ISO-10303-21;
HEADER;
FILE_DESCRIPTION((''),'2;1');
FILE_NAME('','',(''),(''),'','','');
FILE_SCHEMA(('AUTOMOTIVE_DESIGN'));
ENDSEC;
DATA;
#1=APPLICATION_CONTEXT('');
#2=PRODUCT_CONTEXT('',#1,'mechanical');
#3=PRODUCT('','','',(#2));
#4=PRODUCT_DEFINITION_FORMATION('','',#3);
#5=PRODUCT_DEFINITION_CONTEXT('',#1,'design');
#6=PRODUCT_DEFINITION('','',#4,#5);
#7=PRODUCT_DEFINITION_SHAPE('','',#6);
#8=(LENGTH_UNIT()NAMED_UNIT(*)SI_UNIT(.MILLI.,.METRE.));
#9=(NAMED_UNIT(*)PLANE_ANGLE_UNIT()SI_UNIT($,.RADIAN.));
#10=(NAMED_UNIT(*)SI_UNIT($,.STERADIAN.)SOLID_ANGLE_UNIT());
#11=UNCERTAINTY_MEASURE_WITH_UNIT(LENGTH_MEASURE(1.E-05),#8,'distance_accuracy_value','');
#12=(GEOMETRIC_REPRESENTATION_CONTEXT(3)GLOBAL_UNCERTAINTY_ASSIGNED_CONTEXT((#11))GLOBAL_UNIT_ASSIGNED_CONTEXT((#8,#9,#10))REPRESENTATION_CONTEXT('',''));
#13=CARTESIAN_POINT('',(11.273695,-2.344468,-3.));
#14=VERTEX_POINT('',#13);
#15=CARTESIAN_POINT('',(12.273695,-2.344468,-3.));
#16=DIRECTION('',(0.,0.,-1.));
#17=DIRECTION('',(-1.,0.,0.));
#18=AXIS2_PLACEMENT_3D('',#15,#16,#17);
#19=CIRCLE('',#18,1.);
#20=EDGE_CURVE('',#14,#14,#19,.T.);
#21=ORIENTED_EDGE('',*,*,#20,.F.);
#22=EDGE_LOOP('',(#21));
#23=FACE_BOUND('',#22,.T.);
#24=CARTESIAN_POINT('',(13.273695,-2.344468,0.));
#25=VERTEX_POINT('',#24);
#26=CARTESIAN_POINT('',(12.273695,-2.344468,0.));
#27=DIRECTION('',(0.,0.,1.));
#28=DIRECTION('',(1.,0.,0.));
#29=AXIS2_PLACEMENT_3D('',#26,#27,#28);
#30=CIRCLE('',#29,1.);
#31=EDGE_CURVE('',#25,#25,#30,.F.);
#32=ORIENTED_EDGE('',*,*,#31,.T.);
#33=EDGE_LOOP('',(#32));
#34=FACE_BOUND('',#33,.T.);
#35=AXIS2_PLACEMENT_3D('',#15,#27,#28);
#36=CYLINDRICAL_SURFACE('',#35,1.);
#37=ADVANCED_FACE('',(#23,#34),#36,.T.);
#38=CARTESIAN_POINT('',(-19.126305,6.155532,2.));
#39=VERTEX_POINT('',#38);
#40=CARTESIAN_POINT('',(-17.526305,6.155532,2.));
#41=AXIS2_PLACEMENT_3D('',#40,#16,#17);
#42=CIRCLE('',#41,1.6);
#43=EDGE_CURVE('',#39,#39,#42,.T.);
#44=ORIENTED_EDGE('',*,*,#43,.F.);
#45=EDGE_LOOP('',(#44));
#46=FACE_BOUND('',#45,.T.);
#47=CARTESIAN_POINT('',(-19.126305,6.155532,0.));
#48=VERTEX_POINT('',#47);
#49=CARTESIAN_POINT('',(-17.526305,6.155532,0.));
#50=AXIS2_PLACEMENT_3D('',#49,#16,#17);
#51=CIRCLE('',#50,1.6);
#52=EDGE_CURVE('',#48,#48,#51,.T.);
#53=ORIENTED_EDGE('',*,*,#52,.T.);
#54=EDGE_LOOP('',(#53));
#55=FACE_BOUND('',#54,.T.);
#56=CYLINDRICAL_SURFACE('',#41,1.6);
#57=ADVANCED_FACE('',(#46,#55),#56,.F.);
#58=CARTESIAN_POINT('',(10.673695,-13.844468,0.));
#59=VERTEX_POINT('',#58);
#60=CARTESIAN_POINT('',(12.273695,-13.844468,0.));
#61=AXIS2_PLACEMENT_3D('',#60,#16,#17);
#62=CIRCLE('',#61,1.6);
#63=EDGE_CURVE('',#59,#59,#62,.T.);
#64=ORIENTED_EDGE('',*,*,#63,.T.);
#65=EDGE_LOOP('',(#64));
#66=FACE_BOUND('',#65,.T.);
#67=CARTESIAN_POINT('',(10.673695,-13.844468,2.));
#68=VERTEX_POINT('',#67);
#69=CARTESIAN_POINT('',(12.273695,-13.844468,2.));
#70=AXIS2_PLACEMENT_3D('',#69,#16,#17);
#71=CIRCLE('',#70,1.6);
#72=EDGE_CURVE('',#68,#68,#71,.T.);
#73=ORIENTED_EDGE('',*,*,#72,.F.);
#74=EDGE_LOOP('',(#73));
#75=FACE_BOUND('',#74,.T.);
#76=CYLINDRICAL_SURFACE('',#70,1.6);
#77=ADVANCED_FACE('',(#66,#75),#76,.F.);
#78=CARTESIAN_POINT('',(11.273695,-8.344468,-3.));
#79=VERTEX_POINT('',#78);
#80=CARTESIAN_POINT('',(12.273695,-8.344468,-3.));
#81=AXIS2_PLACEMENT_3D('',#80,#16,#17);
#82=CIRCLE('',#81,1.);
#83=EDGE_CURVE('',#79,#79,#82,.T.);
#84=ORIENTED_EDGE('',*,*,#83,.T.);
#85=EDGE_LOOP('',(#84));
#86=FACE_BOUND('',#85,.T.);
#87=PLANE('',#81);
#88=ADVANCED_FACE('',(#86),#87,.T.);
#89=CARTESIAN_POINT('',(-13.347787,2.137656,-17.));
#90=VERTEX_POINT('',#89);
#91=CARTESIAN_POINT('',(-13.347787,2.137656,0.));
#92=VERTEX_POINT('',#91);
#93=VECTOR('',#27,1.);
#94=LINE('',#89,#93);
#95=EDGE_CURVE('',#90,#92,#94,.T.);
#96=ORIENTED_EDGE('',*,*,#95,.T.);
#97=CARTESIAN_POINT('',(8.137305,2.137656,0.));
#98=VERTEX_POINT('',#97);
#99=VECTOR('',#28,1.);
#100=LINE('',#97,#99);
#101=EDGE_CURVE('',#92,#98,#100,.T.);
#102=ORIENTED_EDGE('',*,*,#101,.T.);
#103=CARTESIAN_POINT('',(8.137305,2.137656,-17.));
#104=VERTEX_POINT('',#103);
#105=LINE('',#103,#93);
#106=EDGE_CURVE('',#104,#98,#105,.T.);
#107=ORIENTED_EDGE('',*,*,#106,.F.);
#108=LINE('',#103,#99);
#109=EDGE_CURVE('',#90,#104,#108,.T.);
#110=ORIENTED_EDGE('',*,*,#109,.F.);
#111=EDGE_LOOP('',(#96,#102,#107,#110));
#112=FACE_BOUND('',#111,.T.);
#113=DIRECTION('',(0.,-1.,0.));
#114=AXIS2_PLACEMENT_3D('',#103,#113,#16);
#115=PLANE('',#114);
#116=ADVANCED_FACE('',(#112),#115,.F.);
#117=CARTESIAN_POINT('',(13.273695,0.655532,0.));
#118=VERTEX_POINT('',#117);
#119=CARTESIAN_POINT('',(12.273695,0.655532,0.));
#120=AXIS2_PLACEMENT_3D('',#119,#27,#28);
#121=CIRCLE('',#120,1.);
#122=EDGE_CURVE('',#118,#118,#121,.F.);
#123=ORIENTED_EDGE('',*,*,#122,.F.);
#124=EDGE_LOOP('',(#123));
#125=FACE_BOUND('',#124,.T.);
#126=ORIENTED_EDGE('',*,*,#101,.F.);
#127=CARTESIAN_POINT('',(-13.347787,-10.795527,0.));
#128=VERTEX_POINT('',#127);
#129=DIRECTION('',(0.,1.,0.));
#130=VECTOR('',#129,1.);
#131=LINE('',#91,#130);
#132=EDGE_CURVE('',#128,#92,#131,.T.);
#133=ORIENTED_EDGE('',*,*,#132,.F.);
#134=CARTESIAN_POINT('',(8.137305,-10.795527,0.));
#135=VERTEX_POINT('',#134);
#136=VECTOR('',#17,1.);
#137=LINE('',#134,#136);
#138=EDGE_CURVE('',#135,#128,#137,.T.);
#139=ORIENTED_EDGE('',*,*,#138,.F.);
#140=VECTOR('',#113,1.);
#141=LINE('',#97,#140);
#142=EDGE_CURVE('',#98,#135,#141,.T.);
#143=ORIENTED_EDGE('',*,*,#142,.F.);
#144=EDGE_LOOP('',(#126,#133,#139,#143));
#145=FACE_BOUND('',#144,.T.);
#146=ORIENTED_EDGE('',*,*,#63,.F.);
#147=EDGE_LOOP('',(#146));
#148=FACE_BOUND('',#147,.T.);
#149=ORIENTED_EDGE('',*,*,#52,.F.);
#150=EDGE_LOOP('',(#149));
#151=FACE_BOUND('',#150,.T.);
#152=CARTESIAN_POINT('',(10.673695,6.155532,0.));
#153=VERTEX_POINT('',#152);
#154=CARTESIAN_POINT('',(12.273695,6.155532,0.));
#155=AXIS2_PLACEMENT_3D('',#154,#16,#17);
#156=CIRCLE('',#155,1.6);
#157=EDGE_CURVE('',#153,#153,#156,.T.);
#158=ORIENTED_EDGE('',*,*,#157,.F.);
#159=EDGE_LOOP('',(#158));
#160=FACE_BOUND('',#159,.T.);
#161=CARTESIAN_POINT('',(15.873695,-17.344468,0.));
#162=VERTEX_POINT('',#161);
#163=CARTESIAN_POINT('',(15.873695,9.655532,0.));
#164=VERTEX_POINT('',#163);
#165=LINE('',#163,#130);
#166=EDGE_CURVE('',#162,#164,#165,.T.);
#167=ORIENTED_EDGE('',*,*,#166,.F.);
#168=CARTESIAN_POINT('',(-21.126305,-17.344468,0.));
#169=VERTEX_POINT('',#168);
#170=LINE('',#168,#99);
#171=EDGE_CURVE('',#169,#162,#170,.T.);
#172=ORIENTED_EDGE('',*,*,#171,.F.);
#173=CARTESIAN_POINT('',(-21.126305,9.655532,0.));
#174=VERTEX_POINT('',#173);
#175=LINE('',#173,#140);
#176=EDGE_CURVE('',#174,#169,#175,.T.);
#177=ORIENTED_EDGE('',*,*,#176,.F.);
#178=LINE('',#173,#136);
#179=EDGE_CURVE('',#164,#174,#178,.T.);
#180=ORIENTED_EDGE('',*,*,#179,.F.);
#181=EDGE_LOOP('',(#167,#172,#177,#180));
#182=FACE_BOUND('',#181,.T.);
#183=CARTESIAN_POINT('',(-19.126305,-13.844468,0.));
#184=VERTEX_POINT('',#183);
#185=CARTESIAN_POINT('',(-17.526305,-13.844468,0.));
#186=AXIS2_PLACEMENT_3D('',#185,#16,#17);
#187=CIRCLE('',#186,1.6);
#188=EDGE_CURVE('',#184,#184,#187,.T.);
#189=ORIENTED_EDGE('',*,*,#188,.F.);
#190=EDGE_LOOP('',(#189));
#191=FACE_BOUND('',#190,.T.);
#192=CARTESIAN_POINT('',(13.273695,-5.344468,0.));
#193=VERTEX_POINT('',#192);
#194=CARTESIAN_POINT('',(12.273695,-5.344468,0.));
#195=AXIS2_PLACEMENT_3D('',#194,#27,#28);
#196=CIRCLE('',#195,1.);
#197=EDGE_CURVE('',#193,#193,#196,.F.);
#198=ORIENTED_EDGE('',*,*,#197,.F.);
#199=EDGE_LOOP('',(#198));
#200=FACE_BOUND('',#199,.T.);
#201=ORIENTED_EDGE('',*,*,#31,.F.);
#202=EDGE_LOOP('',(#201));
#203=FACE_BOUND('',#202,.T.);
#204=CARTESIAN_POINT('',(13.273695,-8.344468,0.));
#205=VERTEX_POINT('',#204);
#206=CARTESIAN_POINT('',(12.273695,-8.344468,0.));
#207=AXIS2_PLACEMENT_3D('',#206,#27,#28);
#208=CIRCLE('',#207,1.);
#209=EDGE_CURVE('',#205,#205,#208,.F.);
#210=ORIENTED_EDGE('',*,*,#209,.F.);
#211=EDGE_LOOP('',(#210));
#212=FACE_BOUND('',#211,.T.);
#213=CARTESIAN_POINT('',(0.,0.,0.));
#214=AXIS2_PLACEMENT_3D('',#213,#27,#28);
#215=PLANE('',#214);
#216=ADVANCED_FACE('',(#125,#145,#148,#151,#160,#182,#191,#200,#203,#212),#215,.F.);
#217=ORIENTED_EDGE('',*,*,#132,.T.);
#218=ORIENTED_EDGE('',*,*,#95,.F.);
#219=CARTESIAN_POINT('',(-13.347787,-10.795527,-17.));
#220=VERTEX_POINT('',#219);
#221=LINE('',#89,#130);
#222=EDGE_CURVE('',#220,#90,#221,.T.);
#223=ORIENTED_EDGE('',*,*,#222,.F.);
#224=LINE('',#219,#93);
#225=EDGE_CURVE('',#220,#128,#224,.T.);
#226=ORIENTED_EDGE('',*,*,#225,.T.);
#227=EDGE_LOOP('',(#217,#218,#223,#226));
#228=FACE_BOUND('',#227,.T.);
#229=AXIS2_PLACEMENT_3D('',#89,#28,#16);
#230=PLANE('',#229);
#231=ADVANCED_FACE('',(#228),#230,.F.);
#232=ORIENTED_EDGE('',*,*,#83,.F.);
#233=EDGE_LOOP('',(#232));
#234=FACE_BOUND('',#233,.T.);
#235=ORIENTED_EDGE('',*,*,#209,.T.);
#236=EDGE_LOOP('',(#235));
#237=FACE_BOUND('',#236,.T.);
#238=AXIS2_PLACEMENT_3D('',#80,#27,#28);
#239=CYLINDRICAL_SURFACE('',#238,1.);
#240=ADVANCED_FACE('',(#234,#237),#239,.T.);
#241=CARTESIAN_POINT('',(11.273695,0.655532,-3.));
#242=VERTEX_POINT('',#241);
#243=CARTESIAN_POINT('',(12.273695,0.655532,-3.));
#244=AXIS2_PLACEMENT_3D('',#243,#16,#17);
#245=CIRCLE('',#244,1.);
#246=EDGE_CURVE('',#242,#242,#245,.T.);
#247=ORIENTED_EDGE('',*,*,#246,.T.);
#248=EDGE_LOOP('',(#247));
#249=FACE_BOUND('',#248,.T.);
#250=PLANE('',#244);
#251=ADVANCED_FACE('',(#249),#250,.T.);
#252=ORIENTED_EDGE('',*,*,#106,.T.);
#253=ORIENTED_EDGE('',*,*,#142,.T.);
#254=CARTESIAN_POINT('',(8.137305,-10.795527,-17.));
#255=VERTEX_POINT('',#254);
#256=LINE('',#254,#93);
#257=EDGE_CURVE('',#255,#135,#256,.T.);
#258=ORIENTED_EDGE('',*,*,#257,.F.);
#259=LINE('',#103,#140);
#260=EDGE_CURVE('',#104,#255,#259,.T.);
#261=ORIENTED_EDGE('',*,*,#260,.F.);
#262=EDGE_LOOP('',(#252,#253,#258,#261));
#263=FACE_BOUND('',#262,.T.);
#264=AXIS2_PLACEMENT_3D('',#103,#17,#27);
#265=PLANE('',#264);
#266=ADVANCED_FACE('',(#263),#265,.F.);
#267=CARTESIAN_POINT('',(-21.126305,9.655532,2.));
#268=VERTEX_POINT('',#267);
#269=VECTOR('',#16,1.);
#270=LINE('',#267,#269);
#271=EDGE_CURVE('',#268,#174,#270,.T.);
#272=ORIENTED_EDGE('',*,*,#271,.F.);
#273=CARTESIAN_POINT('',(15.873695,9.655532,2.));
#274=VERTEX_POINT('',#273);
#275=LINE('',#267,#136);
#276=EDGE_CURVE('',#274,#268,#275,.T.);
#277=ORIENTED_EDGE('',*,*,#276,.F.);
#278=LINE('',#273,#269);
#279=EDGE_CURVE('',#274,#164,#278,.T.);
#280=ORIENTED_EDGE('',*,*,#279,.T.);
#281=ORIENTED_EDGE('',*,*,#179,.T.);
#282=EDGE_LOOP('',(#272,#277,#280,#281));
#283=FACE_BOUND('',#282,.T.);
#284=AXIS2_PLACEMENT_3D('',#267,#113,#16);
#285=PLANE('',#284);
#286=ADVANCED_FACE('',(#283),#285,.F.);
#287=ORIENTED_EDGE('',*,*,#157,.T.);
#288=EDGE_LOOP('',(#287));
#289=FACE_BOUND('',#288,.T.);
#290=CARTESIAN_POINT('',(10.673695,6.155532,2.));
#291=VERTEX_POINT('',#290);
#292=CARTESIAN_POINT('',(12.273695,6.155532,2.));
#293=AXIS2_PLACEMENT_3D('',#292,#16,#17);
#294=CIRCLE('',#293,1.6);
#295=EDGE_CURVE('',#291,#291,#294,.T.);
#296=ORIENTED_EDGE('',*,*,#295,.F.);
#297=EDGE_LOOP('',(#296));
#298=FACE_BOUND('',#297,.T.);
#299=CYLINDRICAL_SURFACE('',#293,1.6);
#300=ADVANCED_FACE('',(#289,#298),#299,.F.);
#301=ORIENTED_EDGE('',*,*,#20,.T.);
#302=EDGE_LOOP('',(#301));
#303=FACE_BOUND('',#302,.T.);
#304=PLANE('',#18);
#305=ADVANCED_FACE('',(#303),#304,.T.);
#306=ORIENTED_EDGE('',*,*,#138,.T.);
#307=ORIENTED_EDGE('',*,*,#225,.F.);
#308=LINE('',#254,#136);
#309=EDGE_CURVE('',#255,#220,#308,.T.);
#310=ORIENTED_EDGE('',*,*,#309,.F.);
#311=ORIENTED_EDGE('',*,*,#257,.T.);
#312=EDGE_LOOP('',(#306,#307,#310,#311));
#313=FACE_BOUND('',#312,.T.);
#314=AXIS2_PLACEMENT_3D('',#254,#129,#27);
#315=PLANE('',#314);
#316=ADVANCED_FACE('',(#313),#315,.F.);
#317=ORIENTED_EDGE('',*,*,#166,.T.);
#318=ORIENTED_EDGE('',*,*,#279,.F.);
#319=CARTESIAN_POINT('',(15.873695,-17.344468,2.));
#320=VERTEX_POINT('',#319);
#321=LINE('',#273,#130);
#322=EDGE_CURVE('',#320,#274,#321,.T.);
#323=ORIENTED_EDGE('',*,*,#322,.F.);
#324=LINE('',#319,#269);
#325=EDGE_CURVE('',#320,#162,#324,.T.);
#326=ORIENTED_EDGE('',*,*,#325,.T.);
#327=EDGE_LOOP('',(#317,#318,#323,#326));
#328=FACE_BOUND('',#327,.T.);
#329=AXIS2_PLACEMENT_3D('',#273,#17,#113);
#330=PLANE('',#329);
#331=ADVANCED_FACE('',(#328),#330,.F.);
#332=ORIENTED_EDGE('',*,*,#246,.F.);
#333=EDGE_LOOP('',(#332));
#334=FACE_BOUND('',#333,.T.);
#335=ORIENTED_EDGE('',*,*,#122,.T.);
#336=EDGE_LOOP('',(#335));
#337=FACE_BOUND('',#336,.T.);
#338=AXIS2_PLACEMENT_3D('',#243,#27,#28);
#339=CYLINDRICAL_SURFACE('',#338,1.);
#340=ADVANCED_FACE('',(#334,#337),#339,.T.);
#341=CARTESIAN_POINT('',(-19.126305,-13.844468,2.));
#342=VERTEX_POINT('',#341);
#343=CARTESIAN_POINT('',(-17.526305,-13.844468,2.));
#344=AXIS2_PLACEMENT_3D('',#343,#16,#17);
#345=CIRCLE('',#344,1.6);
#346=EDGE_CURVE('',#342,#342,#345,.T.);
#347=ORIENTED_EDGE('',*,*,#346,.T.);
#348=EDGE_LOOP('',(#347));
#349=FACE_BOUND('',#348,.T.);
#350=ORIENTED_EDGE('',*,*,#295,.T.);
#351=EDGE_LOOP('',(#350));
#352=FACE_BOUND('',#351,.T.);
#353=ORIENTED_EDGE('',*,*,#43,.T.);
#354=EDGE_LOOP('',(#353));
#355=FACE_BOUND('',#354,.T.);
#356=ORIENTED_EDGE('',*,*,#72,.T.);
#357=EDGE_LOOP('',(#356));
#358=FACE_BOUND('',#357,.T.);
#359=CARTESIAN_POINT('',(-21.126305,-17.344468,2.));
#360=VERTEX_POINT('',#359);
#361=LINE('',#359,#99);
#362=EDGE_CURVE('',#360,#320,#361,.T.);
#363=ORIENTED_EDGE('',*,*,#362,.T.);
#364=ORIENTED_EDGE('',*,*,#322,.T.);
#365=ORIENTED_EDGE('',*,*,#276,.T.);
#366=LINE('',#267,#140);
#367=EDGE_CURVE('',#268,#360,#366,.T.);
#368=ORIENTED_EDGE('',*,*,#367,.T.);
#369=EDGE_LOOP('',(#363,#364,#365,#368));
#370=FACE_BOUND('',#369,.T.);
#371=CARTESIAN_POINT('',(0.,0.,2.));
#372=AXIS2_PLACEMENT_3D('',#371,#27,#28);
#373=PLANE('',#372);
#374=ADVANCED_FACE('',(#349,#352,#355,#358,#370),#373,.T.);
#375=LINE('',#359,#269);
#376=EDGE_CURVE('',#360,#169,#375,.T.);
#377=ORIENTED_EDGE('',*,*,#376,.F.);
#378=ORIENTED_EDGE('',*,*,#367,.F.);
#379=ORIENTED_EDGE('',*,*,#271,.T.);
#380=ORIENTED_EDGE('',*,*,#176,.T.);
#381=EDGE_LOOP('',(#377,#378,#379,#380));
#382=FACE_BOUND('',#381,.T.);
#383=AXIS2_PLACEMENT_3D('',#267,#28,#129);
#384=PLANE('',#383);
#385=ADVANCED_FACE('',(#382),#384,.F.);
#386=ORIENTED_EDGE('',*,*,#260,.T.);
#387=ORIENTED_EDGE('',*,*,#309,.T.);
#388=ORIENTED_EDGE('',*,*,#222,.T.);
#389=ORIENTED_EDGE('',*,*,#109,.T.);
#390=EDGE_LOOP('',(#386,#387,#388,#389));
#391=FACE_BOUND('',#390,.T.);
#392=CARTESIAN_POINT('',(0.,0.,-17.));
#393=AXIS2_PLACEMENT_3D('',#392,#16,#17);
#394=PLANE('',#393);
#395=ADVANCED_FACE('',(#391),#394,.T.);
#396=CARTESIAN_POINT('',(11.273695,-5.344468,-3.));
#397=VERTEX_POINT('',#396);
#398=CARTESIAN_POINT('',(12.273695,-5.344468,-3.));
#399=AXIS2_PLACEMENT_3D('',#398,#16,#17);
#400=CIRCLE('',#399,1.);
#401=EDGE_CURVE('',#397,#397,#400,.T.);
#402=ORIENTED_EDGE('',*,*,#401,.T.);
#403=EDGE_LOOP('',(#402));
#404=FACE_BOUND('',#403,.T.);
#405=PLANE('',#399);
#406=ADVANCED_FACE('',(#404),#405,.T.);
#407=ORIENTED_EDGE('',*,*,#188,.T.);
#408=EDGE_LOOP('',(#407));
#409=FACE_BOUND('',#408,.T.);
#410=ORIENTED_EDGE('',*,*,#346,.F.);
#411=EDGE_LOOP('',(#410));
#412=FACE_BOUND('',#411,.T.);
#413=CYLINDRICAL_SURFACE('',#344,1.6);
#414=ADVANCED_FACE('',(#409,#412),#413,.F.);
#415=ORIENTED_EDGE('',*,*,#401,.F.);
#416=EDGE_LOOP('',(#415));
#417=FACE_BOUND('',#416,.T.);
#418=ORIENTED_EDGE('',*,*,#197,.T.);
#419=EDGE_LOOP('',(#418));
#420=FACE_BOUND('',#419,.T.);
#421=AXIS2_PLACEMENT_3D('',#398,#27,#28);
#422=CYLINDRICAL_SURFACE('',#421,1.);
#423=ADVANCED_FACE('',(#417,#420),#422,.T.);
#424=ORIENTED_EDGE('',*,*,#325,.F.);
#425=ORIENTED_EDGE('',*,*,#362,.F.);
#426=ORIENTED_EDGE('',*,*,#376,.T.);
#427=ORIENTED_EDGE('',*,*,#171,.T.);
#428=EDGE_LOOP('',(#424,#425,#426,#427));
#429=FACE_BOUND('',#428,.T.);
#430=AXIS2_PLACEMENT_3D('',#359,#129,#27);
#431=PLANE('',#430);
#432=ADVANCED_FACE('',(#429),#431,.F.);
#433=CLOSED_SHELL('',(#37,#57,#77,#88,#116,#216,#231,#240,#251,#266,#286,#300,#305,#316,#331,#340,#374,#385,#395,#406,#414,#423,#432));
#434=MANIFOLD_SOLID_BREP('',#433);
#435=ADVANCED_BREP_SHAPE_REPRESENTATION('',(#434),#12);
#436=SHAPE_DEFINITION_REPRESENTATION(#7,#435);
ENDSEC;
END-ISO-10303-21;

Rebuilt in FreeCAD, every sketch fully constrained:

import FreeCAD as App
import Part
import Sketcher
Q = App.Units.Quantity

doc = App.newDocument("Part")
params = doc.addObject("Spreadsheet::Sheet", "Params")
for row, (alias, value) in enumerate([
    ("sketch1_width", "37 mm"),
    ("sketch1_height", "27 mm"),
    ("pad1_length", "2 mm"),
    ("sketch2_diameter", "3.2 mm"),
    ("pad2_length", "17 mm"),
    ("sketch4_diameter", "2 mm"),
    ("pad3_length", "3 mm"),
], start=1):
    params.set(f"A{row}", alias)
    params.set(f"B{row}", "=" + value)
    params.setAlias(f"B{row}", alias)

body = doc.addObject("PartDesign::Body", "Body")

# Sketch on XY plane
sketch1 = body.newObject("Sketcher::SketchObject", "Sketch")
sketch1.AttachmentSupport = (doc.getObject("XY_Plane"), [""])
sketch1.MapMode = "FlatFace"
sketch1.addGeometry([
    Part.LineSegment(App.Vector(-21, 10, 0), App.Vector(-21, -17, 0)),
    Part.LineSegment(App.Vector(-21, -17, 0), App.Vector(16, -17, 0)),
    Part.LineSegment(App.Vector(16, -17, 0), App.Vector(16, 10, 0)),
    Part.LineSegment(App.Vector(16, 10, 0), App.Vector(-21, 10, 0)),
], False)
sketch1.addConstraint([
    Sketcher.Constraint("Coincident", 0, 2, 1, 1),
    Sketcher.Constraint("Coincident", 1, 2, 2, 1),
    Sketcher.Constraint("Coincident", 2, 2, 3, 1),
    Sketcher.Constraint("Coincident", 3, 2, 0, 1),
    Sketcher.Constraint("Vertical", 0),
    Sketcher.Constraint("Horizontal", 1),
    Sketcher.Constraint("Vertical", 2),
    Sketcher.Constraint("Horizontal", 3),
    Sketcher.Constraint("DistanceX", 1, 1, 1, 2, Q("37 mm")),
    Sketcher.Constraint("DistanceY", 0, 2, 0, 1, Q("27 mm")),
    Sketcher.Constraint("DistanceX", 0, 2, -1, 1, Q("21.126305 mm")),
    Sketcher.Constraint("DistanceY", 0, 2, -1, 1, Q("17.344468 mm")),
])
sketch1.setExpression("Constraints[8]", "Params.sketch1_width")
sketch1.setExpression("Constraints[9]", "Params.sketch1_height")
pad1 = body.newObject("PartDesign::Pad", "Pad")
pad1.Profile = sketch1
pad1.setExpression("Length", "Params.pad1_length")

# Sketch on XY plane
sketch2 = body.newObject("Sketcher::SketchObject", "Sketch001")
sketch2.AttachmentSupport = (doc.getObject("XY_Plane"), [""])
sketch2.MapMode = "FlatFace"
sketch2.addGeometry([
    Part.Circle(App.Vector(12.3, 6.2, 0), App.Vector(0, 0, 1), 1.6),
    Part.Circle(App.Vector(12.3, -13.8, 0), App.Vector(0, 0, 1), 1.6),
    Part.Circle(App.Vector(-17.5, -13.8, 0), App.Vector(0, 0, 1), 1.6),
    Part.Circle(App.Vector(-17.5, 6.2, 0), App.Vector(0, 0, 1), 1.6),
], False)
sketch2.addConstraint([
    Sketcher.Constraint("Equal", 0, 1),
    Sketcher.Constraint("Equal", 1, 2),
    Sketcher.Constraint("Equal", 2, 3),
    Sketcher.Constraint("Horizontal", 1, 3, 2, 3),
    Sketcher.Constraint("Horizontal", 0, 3, 3, 3),
    Sketcher.Constraint("Vertical", 0, 3, 1, 3),
    Sketcher.Constraint("Vertical", 2, 3, 3, 3),
    Sketcher.Constraint("Diameter", 0, Q("3.2 mm")),
    Sketcher.Constraint("DistanceY", 1, 3, 0, 3, Q("20 mm")),
    Sketcher.Constraint("DistanceX", 2, 3, 1, 3, Q("29.8 mm")),
    Sketcher.Constraint("DistanceX", -1, 1, 0, 3, Q("12.273695 mm")),
    Sketcher.Constraint("DistanceY", -1, 1, 0, 3, Q("6.155532 mm")),
])
sketch2.setExpression("Constraints[7]", "Params.sketch2_diameter")
pocket1 = body.newObject("PartDesign::Pocket", "Pocket")
pocket1.Profile = sketch2
pocket1.Type = "ThroughAll"
pocket1.Reversed = True

# Sketch on XY plane
sketch3 = body.newObject("Sketcher::SketchObject", "Sketch002")
sketch3.AttachmentSupport = (doc.getObject("XY_Plane"), [""])
sketch3.MapMode = "FlatFace"
sketch3.addGeometry([
    Part.LineSegment(App.Vector(8, 2, 0), App.Vector(8, -11, 0)),
    Part.LineSegment(App.Vector(8, -11, 0), App.Vector(-13, -11, 0)),
    Part.LineSegment(App.Vector(-13, -11, 0), App.Vector(-13, 2, 0)),
    Part.LineSegment(App.Vector(-13, 2, 0), App.Vector(8, 2, 0)),
], False)
sketch3.addConstraint([
    Sketcher.Constraint("Coincident", 0, 2, 1, 1),
    Sketcher.Constraint("Coincident", 1, 2, 2, 1),
    Sketcher.Constraint("Coincident", 2, 2, 3, 1),
    Sketcher.Constraint("Coincident", 3, 2, 0, 1),
    Sketcher.Constraint("Vertical", 0),
    Sketcher.Constraint("Horizontal", 1),
    Sketcher.Constraint("Vertical", 2),
    Sketcher.Constraint("Horizontal", 3),
    Sketcher.Constraint("DistanceX", 1, 2, 1, 1, Q("21.485092 mm")),
    Sketcher.Constraint("DistanceY", 0, 2, 0, 1, Q("12.933183 mm")),
    Sketcher.Constraint("DistanceX", -1, 1, 0, 2, Q("8.137305 mm")),
    Sketcher.Constraint("DistanceY", 0, 2, -1, 1, Q("10.795527 mm")),
])
pad2 = body.newObject("PartDesign::Pad", "Pad001")
pad2.Profile = sketch3
pad2.setExpression("Length", "Params.pad2_length")
pad2.Reversed = True

# Sketch on XY plane
sketch4 = body.newObject("Sketcher::SketchObject", "Sketch003")
sketch4.AttachmentSupport = (doc.getObject("XY_Plane"), [""])
sketch4.MapMode = "FlatFace"
sketch4.addGeometry([
    Part.Circle(App.Vector(12.3, -2.3, 0), App.Vector(0, 0, 1), 1),
    Part.Circle(App.Vector(12.3, -5.3, 0), App.Vector(0, 0, 1), 1),
    Part.Circle(App.Vector(12.3, -8.3, 0), App.Vector(0, 0, 1), 1),
    Part.Circle(App.Vector(12.3, 0.7, 0), App.Vector(0, 0, 1), 1),
], False)
sketch4.addConstraint([
    Sketcher.Constraint("Equal", 0, 1),
    Sketcher.Constraint("Equal", 1, 2),
    Sketcher.Constraint("Equal", 2, 3),
    Sketcher.Constraint("Vertical", 0, 3, 1, 3),
    Sketcher.Constraint("Vertical", 1, 3, 2, 3),
    Sketcher.Constraint("Vertical", 2, 3, 3, 3),
    Sketcher.Constraint("Diameter", 0, Q("2 mm")),
    Sketcher.Constraint("DistanceY", 1, 3, 0, 3, Q("3 mm")),
    Sketcher.Constraint("DistanceY", 2, 3, 1, 3, Q("3 mm")),
    Sketcher.Constraint("DistanceY", 0, 3, 3, 3, Q("3 mm")),
    Sketcher.Constraint("DistanceX", -1, 1, 0, 3, Q("12.273695 mm")),
    Sketcher.Constraint("DistanceY", 0, 3, -1, 1, Q("2.344468 mm")),
])
sketch4.setExpression("Constraints[6]", "Params.sketch4_diameter")
pad3 = body.newObject("PartDesign::Pad", "Pad002")
pad3.Profile = sketch4
pad3.setExpression("Length", "Params.pad3_length")
pad3.Reversed = True

doc.recompute()
